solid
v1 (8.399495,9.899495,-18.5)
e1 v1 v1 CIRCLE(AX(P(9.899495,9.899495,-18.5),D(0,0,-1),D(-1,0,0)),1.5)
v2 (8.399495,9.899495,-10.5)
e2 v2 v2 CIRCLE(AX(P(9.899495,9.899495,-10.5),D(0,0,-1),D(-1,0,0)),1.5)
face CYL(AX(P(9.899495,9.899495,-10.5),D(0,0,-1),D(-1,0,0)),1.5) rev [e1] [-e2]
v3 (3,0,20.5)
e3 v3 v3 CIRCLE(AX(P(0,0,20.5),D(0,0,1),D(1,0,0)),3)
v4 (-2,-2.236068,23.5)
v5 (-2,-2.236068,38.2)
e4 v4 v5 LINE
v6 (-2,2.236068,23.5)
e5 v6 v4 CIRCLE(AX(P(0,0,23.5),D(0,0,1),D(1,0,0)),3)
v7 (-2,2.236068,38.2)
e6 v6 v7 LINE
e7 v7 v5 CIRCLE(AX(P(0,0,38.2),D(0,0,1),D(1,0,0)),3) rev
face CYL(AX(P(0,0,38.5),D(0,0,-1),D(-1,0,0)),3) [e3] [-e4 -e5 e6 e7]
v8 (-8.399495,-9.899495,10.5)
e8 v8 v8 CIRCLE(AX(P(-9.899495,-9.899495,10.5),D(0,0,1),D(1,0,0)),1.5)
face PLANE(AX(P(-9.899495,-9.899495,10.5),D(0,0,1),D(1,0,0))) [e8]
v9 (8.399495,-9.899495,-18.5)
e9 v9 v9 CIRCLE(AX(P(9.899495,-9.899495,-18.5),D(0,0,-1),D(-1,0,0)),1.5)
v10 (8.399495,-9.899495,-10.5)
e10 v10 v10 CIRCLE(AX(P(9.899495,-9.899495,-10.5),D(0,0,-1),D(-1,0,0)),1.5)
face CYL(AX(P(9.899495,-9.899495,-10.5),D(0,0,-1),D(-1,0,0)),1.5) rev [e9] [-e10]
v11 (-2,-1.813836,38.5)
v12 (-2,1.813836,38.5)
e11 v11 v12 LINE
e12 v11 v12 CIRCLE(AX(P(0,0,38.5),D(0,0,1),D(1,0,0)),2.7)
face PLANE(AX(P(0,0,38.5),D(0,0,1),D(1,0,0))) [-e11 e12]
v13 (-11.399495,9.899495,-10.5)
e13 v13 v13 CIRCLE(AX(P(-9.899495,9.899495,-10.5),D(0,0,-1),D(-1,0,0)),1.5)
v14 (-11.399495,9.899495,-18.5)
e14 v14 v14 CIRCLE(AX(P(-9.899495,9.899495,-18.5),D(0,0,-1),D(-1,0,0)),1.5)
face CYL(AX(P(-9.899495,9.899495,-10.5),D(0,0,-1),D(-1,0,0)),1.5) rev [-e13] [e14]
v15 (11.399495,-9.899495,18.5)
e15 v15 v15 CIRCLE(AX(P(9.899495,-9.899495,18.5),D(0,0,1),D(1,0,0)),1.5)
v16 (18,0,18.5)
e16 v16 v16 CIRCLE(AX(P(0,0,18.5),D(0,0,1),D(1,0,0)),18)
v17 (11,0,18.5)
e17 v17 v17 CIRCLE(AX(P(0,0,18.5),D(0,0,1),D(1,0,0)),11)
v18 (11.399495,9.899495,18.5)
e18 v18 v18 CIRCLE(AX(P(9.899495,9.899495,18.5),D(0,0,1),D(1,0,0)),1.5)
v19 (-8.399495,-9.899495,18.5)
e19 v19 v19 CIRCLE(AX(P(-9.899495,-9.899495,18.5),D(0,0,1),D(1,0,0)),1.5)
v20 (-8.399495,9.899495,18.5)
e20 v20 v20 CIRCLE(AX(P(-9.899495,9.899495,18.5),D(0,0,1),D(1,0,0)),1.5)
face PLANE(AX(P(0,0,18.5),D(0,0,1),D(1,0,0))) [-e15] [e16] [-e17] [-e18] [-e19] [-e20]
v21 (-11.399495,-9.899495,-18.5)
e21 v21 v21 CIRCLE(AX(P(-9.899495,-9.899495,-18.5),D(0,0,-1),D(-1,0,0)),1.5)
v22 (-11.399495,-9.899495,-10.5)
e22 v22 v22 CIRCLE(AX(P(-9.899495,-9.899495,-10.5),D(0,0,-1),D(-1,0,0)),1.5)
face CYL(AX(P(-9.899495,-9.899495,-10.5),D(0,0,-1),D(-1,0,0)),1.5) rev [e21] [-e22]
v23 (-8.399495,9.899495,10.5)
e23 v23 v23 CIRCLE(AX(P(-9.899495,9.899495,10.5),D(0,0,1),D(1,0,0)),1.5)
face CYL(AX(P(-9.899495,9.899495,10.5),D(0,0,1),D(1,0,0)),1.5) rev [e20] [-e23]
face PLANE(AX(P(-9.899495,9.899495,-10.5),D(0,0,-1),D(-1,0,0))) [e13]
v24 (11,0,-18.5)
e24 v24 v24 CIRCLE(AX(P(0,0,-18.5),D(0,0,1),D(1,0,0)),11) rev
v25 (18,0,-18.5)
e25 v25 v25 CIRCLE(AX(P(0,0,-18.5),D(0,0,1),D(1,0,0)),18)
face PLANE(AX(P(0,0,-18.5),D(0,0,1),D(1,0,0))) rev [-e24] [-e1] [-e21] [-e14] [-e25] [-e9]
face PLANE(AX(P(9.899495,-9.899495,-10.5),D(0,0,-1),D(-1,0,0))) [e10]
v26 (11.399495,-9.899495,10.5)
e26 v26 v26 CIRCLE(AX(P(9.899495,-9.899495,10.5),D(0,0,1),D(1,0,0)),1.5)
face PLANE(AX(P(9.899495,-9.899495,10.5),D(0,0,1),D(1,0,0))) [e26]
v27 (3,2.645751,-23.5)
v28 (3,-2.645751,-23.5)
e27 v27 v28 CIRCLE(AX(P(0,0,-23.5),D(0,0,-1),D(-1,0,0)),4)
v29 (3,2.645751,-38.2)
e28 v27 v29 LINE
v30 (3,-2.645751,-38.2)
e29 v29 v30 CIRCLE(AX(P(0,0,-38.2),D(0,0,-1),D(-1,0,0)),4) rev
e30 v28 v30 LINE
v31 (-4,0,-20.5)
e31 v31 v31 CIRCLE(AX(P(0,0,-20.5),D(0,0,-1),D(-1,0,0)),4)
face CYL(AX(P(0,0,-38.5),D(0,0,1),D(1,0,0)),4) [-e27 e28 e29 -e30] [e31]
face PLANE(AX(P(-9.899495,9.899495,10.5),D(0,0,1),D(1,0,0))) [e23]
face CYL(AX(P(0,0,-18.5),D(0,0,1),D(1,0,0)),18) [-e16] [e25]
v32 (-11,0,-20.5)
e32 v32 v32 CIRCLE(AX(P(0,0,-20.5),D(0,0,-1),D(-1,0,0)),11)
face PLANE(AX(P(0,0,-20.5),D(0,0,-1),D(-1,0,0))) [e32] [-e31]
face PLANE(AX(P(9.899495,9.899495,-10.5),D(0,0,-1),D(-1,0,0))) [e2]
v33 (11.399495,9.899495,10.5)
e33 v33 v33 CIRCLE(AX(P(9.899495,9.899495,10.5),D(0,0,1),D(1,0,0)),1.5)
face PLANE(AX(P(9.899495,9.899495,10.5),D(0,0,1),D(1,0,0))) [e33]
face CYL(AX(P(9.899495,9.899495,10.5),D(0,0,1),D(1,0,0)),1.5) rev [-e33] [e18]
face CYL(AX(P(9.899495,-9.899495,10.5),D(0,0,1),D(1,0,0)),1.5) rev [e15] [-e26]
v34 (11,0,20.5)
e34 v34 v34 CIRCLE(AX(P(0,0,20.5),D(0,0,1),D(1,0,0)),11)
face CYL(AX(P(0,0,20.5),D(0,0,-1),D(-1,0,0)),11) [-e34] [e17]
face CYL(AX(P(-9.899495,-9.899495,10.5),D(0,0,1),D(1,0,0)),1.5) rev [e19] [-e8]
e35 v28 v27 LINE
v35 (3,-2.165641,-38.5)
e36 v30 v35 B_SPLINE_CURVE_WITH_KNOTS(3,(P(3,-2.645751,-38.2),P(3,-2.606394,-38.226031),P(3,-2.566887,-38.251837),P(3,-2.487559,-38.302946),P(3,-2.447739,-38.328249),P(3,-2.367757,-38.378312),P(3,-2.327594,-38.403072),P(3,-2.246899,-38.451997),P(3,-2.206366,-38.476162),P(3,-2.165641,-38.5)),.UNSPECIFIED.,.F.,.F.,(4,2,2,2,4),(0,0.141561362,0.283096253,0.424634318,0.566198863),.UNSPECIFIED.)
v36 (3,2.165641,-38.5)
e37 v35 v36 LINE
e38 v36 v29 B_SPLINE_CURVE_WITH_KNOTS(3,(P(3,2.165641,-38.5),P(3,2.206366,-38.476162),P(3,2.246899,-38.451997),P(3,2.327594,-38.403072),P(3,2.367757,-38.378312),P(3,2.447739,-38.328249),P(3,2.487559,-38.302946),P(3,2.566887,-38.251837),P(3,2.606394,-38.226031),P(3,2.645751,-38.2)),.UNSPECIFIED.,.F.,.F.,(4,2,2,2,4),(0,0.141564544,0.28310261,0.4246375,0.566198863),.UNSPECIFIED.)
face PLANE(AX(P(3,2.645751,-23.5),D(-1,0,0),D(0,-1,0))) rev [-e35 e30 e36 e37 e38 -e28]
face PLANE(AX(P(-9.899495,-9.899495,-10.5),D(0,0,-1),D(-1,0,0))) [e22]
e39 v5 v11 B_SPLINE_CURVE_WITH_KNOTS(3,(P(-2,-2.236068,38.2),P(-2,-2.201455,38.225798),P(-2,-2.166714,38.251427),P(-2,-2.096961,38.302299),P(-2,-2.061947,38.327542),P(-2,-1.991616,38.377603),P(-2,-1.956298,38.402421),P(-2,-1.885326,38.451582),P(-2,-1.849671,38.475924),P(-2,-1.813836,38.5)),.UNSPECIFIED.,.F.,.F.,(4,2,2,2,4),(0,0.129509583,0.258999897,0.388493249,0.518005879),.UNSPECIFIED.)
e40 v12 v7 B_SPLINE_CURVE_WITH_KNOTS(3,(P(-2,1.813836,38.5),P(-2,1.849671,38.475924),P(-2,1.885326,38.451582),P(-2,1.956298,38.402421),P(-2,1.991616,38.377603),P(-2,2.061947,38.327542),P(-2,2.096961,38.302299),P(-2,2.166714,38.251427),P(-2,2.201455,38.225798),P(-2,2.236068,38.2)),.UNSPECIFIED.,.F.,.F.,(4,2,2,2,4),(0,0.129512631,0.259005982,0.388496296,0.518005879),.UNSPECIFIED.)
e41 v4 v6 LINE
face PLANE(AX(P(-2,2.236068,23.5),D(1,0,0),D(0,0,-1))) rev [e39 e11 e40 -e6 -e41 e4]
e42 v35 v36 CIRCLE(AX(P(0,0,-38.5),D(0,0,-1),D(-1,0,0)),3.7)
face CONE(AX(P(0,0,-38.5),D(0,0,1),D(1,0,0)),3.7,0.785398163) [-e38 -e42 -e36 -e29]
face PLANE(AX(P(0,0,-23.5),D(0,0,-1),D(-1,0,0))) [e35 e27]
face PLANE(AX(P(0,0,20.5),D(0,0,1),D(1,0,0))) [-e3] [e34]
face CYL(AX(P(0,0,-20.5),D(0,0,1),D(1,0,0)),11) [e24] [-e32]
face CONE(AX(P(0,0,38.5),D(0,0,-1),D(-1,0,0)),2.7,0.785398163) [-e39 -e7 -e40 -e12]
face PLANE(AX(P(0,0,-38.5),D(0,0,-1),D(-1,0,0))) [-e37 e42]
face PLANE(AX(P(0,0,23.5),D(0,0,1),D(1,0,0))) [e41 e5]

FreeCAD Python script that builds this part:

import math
import FreeCAD as App
import Part
import Sketcher


def edges_at(feature, points):
    """Names of the edges that pass closest to the given points."""
    edges = feature.Shape.Edges
    near = lambda p: min(range(len(edges)), key=lambda i: edges[i].distToShape(Part.Vertex(*p))[0])
    return sorted({f"Edge{near(p) + 1}" for p in points})

doc = App.newDocument("Part")
body = doc.addObject("PartDesign::Body", "Body")

# Sketch on XY plane
sketch1 = body.newObject("Sketcher::SketchObject", "Sketch")
sketch1.AttachmentSupport = (doc.getObject("XY_Plane"), [""])
sketch1.MapMode = "FlatFace"
sketch1.addGeometry(Part.Circle(App.Vector(0, 0, 0), App.Vector(0, 0, 1), 18), False)
sketch1.addConstraint([
    Sketcher.Constraint("Coincident", 0, 3, -1, 1),
    Sketcher.Constraint("Diameter", 0, 36.0),
])
pad1 = body.newObject("PartDesign::Pad", "Pad")
pad1.Profile = sketch1
pad1.Length = 37
pad1.Midplane = True

# Sketch on XY plane
sketch2 = body.newObject("Sketcher::SketchObject", "Sketch001")
sketch2.AttachmentSupport = (doc.getObject("XY_Plane"), [""])
sketch2.MapMode = "FlatFace"
sketch2.AttachmentOffset = App.Placement(App.Vector(0, 0, 18.5), App.Rotation())
sketch2.addGeometry(Part.Circle(App.Vector(0, 0, 0), App.Vector(0, 0, 1), 3), False)
sketch2.addConstraint([
    Sketcher.Constraint("Coincident", 0, 3, -1, 1),
    Sketcher.Constraint("Diameter", 0, 6.0),
])
pad2 = body.newObject("PartDesign::Pad", "Pad001")
pad2.Profile = sketch2
pad2.Length = 20

# Sketch on XY plane
sketch3 = body.newObject("Sketcher::SketchObject", "Sketch002")
sketch3.AttachmentSupport = (doc.getObject("XY_Plane"), [""])
sketch3.MapMode = "FlatFace"
sketch3.AttachmentOffset = App.Placement(App.Vector(0, 0, 18.5), App.Rotation())
sketch3.addGeometry(Part.Circle(App.Vector(0, 0, 0), App.Vector(0, 0, 1), 11), False)
sketch3.addConstraint([
    Sketcher.Constraint("Coincident", 0, 3, -1, 1),
    Sketcher.Constraint("Diameter", 0, 22.0),
])
pad3 = body.newObject("PartDesign::Pad", "Pad002")
pad3.Profile = sketch3
pad3.Length = 2

# Sketch on XY plane
sketch4 = body.newObject("Sketcher::SketchObject", "Sketch003")
sketch4.AttachmentSupport = (doc.getObject("XY_Plane"), [""])
sketch4.MapMode = "FlatFace"
sketch4.AttachmentOffset = App.Placement(App.Vector(0, 0, 18.5), App.Rotation())
sketch4.addGeometry([
    Part.Circle(App.Vector(-9.9, 9.9, 0), App.Vector(0, 0, 1), 1.5),
    Part.Circle(App.Vector(9.9, 9.9, 0), App.Vector(0, 0, 1), 1.5),
    Part.Circle(App.Vector(9.9, -9.9, 0), App.Vector(0, 0, 1), 1.5),
    Part.Circle(App.Vector(-9.9, -9.9, 0), App.Vector(0, 0, 1), 1.5),
], False)
sketch4.addConstraint([
    Sketcher.Constraint("Equal", 0, 1),
    Sketcher.Constraint("Equal", 1, 2),
    Sketcher.Constraint("Equal", 2, 3),
    Sketcher.Constraint("Symmetric", 0, 3, 2, 3, -1, 1),
    Sketcher.Constraint("Symmetric", 1, 3, 3, 3, -1, 1),
    Sketcher.Constraint("Symmetric", 0, 3, 1, 3, -2),
    Sketcher.Constraint("Diameter", 0, 3.0),
    Sketcher.Constraint("DistanceX", 0, 3, 1, 3, 19.79899),
    Sketcher.Constraint("DistanceY", 2, 3, 1, 3, 19.79899),
])
pocket1 = body.newObject("PartDesign::Pocket", "Pocket")
pocket1.Profile = sketch4
pocket1.Length = 8

# Sketch on XY plane
sketch5 = body.newObject("Sketcher::SketchObject", "Sketch004")
sketch5.AttachmentSupport = (doc.getObject("XY_Plane"), [""])
sketch5.MapMode = "FlatFace"
sketch5.AttachmentOffset = App.Placement(App.Vector(0, 0, -18.5), App.Rotation())
sketch5.addGeometry(Part.Circle(App.Vector(0, 0, 0), App.Vector(0, 0, 1), 4), False)
sketch5.addConstraint([
    Sketcher.Constraint("Coincident", 0, 3, -1, 1),
    Sketcher.Constraint("Diameter", 0, 8.0),
])
pad4 = body.newObject("PartDesign::Pad", "Pad003")
pad4.Profile = sketch5
pad4.Length = 20
pad4.Reversed = True

# Sketch on XY plane
sketch6 = body.newObject("Sketcher::SketchObject", "Sketch005")
sketch6.AttachmentSupport = (doc.getObject("XY_Plane"), [""])
sketch6.MapMode = "FlatFace"
sketch6.AttachmentOffset = App.Placement(App.Vector(0, 0, -20.5), App.Rotation())
sketch6.addGeometry(Part.Circle(App.Vector(0, 0, 0), App.Vector(0, 0, 1), 11), False)
sketch6.addConstraint([
    Sketcher.Constraint("Coincident", 0, 3, -1, 1),
    Sketcher.Constraint("Diameter", 0, 22.0),
])
pad5 = body.newObject("PartDesign::Pad", "Pad004")
pad5.Profile = sketch6
pad5.Length = 2

# Sketch on XY plane
sketch7 = body.newObject("Sketcher::SketchObject", "Sketch006")
sketch7.AttachmentSupport = (doc.getObject("XY_Plane"), [""])
sketch7.MapMode = "FlatFace"
sketch7.AttachmentOffset = App.Placement(App.Vector(0, 0, -10.5), App.Rotation())
sketch7.addGeometry([
    Part.Circle(App.Vector(9.9, 9.9, 0), App.Vector(0, 0, 1), 1.5),
    Part.Circle(App.Vector(-9.9, 9.9, 0), App.Vector(0, 0, 1), 1.5),
    Part.Circle(App.Vector(-9.9, -9.9, 0), App.Vector(0, 0, 1), 1.5),
    Part.Circle(App.Vector(9.9, -9.9, 0), App.Vector(0, 0, 1), 1.5),
], False)
sketch7.addConstraint([
    Sketcher.Constraint("Equal", 0, 1),
    Sketcher.Constraint("Equal", 1, 2),
    Sketcher.Constraint("Equal", 2, 3),
    Sketcher.Constraint("Symmetric", 0, 3, 2, 3, -1, 1),
    Sketcher.Constraint("Symmetric", 1, 3, 3, 3, -1, 1),
    Sketcher.Constraint("Symmetric", 0, 3, 1, 3, -2),
    Sketcher.Constraint("Diameter", 0, 3.0),
    Sketcher.Constraint("DistanceX", 1, 3, 0, 3, 19.79899),
    Sketcher.Constraint("DistanceY", 2, 3, 1, 3, 19.79899),
])
pocket2 = body.newObject("PartDesign::Pocket", "Pocket001")
pocket2.Profile = sketch7
pocket2.Length = 8

# Sketch on XY plane
sketch8 = body.newObject("Sketcher::SketchObject", "Sketch007")
sketch8.AttachmentSupport = (doc.getObject("XY_Plane"), [""])
sketch8.MapMode = "FlatFace"
sketch8.AttachmentOffset = App.Placement(App.Vector(0, 0, 23.5), App.Rotation())
sketch8.addGeometry([
    Part.LineSegment(App.Vector(-2, -2.2, 0), App.Vector(-2, 2.2, 0)),
    Part.ArcOfCircle(Part.Circle(App.Vector(0, 0, 0), App.Vector(0, 0, 1), 3), math.radians(132), math.radians(228)),
], False)
sketch8.addConstraint([
    Sketcher.Constraint("Coincident", 0, 1, 1, 2),
    Sketcher.Constraint("Coincident", 1, 1, 0, 2),
    Sketcher.Constraint("Vertical", 0),
    Sketcher.Constraint("Coincident", 1, 3, -1, 1),
    Sketcher.Constraint("Radius", 1, 3.0),
    Sketcher.Constraint("DistanceX", 0, 1, -1, 1, 2.0),
])
pocket3 = body.newObject("PartDesign::Pocket", "Pocket002")
pocket3.Profile = sketch8
pocket3.Length = 15
pocket3.Reversed = True

# Sketch on XY plane
sketch9 = body.newObject("Sketcher::SketchObject", "Sketch008")
sketch9.AttachmentSupport = (doc.getObject("XY_Plane"), [""])
sketch9.MapMode = "FlatFace"
sketch9.AttachmentOffset = App.Placement(App.Vector(0, 0, -23.5), App.Rotation())
sketch9.addGeometry([
    Part.LineSegment(App.Vector(3, -2.6, 0), App.Vector(3, 2.6, 0)),
    Part.ArcOfCircle(Part.Circle(App.Vector(0, 0, 0), App.Vector(0, 0, 1), 4), math.radians(-41), math.radians(41)),
], False)
sketch9.addConstraint([
    Sketcher.Constraint("Coincident", 0, 1, 1, 1),
    Sketcher.Constraint("Coincident", 1, 2, 0, 2),
    Sketcher.Constraint("Vertical", 0),
    Sketcher.Constraint("Coincident", 1, 3, -1, 1),
    Sketcher.Constraint("Radius", 1, 4.0),
    Sketcher.Constraint("DistanceX", -1, 1, 0, 1, 3.0),
])
pocket4 = body.newObject("PartDesign::Pocket", "Pocket003")
pocket4.Profile = sketch9
pocket4.Length = 15
doc.recompute()

chamfer = body.newObject("PartDesign::Chamfer", "Chamfer")
chamfer.Base = (pocket4, edges_at(pocket4, [(1.225, -2.739, 38.5), (-1.414, -3.742, -38.5)]))
chamfer.Size = 0.3

doc.recompute()
